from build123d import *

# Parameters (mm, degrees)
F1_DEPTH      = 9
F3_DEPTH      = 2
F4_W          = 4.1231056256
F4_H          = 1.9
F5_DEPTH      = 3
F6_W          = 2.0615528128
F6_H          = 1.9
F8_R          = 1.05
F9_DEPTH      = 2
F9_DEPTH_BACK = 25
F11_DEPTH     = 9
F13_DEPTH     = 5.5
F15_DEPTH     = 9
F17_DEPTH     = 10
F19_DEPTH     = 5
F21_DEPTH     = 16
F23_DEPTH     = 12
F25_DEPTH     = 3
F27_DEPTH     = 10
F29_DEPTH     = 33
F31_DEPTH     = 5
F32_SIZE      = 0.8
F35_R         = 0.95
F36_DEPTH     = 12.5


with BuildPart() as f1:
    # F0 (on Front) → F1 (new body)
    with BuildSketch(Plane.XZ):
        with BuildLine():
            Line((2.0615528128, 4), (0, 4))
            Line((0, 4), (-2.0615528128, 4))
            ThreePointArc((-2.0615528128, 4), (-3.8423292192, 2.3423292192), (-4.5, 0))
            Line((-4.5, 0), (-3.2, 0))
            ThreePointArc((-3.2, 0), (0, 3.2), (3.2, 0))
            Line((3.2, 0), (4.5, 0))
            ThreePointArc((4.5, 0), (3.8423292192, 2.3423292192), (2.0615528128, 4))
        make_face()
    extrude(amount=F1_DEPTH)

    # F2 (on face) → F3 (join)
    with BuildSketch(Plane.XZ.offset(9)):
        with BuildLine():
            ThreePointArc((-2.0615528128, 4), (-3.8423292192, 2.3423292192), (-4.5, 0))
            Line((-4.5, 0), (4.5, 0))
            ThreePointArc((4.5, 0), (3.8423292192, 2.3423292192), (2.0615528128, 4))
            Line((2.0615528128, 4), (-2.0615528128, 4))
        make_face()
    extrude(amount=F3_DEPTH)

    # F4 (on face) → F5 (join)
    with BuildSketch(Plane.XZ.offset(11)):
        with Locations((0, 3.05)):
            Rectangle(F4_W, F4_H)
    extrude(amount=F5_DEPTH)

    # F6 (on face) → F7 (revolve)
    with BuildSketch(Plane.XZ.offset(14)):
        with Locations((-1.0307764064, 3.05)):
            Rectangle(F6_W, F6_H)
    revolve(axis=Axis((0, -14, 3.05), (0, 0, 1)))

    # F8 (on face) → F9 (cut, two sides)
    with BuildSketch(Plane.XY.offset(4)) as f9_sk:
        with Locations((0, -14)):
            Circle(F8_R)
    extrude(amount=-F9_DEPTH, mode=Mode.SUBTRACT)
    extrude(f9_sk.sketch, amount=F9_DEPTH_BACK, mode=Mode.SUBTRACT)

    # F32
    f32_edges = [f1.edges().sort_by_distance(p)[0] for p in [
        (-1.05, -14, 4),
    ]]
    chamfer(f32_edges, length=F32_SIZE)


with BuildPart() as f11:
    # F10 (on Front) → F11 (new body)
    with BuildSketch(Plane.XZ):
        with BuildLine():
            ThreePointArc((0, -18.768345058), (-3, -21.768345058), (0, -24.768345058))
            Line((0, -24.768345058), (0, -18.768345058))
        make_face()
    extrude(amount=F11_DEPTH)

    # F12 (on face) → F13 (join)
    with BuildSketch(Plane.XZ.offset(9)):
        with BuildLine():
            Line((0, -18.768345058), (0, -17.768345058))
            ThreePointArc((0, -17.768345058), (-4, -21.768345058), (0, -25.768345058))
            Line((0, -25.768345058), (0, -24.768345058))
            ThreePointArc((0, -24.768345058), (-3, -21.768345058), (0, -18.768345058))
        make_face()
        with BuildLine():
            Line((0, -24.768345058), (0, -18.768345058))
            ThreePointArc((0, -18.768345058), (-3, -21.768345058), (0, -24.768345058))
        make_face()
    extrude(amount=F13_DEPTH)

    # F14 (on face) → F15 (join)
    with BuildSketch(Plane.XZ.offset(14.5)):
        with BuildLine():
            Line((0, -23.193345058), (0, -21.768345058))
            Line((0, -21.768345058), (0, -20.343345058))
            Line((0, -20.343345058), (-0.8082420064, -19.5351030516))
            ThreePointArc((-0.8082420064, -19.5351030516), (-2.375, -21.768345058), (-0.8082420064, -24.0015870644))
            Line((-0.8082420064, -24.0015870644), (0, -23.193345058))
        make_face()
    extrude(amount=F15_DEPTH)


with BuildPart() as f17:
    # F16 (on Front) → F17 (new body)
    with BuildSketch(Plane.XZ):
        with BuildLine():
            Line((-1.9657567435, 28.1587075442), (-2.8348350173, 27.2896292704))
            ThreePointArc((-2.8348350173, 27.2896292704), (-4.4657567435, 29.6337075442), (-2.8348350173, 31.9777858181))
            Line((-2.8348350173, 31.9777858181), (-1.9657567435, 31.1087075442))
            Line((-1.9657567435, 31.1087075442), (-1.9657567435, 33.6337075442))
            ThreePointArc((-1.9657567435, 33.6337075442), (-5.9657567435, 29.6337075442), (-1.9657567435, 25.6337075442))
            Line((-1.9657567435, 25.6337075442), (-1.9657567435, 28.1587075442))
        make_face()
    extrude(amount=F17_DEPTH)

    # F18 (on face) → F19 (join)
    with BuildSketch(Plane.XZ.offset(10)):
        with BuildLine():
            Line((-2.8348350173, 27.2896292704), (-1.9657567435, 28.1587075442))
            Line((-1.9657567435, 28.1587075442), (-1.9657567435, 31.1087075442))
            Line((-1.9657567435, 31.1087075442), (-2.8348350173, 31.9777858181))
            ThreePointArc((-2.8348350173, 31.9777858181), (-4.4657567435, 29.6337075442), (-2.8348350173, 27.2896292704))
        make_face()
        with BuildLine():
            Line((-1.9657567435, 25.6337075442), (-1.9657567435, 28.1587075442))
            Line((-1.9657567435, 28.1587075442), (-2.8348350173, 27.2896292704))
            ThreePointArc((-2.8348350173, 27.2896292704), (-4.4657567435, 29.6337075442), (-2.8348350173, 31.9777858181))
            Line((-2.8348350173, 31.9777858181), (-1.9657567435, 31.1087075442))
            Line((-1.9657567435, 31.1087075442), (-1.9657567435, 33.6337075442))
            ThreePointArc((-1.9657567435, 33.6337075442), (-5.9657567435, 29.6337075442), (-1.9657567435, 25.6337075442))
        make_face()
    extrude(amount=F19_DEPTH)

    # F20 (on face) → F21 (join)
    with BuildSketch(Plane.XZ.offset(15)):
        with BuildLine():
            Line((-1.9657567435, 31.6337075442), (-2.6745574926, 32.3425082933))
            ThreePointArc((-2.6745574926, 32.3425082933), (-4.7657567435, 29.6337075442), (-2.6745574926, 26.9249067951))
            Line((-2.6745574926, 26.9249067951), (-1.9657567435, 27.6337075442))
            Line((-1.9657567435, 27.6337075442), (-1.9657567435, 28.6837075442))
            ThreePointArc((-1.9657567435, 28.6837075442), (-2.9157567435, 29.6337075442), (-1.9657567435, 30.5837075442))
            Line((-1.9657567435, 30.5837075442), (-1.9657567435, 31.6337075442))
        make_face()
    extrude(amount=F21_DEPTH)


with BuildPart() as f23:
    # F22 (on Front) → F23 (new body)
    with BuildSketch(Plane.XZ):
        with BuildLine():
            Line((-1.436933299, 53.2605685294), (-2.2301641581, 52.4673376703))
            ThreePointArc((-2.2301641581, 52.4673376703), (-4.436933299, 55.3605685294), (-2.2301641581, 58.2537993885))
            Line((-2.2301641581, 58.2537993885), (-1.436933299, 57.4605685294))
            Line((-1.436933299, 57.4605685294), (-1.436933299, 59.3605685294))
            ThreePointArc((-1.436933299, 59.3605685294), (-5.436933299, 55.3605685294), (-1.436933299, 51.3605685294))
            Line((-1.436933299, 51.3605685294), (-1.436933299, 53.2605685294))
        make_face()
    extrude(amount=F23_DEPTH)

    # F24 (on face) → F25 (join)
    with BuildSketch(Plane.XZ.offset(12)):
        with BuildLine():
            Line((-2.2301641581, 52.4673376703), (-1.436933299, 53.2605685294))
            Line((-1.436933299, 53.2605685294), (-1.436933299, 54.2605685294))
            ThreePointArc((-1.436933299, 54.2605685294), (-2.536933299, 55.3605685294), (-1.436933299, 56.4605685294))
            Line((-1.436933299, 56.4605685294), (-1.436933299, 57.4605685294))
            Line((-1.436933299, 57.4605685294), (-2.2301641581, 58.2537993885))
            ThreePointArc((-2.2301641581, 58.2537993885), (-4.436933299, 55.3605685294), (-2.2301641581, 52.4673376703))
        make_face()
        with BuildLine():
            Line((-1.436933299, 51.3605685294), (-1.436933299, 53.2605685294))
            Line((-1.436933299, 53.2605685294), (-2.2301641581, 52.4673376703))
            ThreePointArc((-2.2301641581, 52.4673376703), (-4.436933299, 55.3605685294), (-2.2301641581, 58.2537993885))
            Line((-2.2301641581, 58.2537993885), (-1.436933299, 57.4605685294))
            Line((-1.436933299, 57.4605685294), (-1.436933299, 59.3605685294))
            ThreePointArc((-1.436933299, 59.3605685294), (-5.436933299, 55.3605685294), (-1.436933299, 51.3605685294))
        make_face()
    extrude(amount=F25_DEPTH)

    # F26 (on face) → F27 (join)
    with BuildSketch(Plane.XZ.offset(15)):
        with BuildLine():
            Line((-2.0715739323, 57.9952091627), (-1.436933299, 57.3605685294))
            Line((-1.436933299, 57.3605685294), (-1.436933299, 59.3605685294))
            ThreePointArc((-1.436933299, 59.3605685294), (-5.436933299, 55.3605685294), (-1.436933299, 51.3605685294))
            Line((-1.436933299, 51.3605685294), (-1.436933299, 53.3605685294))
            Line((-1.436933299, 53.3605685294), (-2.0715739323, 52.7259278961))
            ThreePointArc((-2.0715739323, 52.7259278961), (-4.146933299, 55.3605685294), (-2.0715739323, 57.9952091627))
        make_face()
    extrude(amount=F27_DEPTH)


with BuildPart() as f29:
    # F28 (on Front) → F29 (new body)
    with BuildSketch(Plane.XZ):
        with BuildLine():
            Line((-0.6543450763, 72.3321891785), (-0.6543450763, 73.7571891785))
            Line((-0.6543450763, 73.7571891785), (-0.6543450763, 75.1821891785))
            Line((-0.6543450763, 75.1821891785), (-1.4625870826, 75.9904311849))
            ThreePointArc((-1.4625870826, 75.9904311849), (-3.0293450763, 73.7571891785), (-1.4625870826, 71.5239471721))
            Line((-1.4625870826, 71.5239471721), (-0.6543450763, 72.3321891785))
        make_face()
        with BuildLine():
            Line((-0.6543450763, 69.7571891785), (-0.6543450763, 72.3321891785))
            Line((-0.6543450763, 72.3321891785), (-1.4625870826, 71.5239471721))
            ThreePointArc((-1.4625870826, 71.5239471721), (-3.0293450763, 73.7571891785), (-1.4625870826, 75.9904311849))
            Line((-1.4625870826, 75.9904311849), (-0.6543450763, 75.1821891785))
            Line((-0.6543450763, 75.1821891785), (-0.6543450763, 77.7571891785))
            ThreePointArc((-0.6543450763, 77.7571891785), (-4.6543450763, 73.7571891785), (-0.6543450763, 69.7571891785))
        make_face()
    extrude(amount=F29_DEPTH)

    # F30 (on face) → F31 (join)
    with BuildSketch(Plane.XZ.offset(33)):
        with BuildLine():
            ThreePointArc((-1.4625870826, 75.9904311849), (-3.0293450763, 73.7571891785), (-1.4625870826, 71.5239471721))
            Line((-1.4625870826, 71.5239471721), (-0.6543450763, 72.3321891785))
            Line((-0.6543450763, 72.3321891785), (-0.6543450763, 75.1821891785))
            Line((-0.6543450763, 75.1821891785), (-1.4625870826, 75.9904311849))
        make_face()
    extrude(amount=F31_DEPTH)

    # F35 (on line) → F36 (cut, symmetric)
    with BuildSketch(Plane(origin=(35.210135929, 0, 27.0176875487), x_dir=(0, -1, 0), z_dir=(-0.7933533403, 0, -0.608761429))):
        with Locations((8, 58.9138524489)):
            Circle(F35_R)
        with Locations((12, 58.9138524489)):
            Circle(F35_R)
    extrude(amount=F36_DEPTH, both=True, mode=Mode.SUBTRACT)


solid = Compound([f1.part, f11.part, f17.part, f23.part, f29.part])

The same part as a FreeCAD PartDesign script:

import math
import FreeCAD as App
import Part
import Sketcher
from FreeCAD import Vector
Q = App.Units.Quantity


def edges_at(feature, points):
    """Names of the edges that pass closest to the given points."""
    edges = feature.Shape.Edges
    near = lambda p: min(range(len(edges)), key=lambda i: edges[i].distToShape(Part.Vertex(*p))[0])
    return sorted({f"Edge{near(p) + 1}" for p in points})

doc = App.newDocument("Part")
body = doc.addObject("PartDesign::Body", "Body")

sketch1 = body.newObject("Sketcher::SketchObject", "Sketch")
sketch1.AttachmentSupport = (doc.getObject("XZ_Plane"), [""])
sketch1.MapMode = "FlatFace"
sketch1.addGeometry([
    Part.LineSegment(Vector(2.1, 4, 0), Vector(-2.1, 4, 0)),
    Part.ArcOfCircle(Part.Circle(Vector(0, 0, 0), Vector(0, 0, 1), 4.5), math.radians(117), math.radians(180)),
    Part.LineSegment(Vector(-4.5, 0, 0), Vector(-3.2, 0, 0)),
    Part.ArcOfCircle(Part.Circle(Vector(0, 0, 0), Vector(0, 0, 1), 3.2), math.radians(0), math.radians(180)),
    Part.LineSegment(Vector(3.2, 0, 0), Vector(4.5, 0, 0)),
    Part.ArcOfCircle(Part.Circle(Vector(0, 0, 0), Vector(0, 0, 1), 4.5), math.radians(0), math.radians(63)),
], False)
sketch1.addConstraint([
    Sketcher.Constraint("Coincident", 0, 2, 1, 1),
    Sketcher.Constraint("Coincident", 1, 2, 2, 1),
    Sketcher.Constraint("Coincident", 2, 2, 3, 2),
    Sketcher.Constraint("Coincident", 3, 1, 4, 1),
    Sketcher.Constraint("Coincident", 4, 2, 5, 1),
    Sketcher.Constraint("Coincident", 5, 2, 0, 1),
    Sketcher.Constraint("Horizontal", 0),
    Sketcher.Constraint("Horizontal", 2),
    Sketcher.Constraint("Horizontal", 4),
    Sketcher.Constraint("Coincident", 1, 3, -1, 1),
    Sketcher.Constraint("Coincident", 3, 3, -1, 1),
    Sketcher.Constraint("Coincident", 5, 3, -1, 1),
    Sketcher.Constraint("Equal", 1, 5),
    Sketcher.Constraint("PointOnObject", 1, 2, -1),
    Sketcher.Constraint("PointOnObject", 3, 1, -1),
    Sketcher.Constraint("Radius", 1, Q("4.5 mm")),
    Sketcher.Constraint("Radius", 3, Q("3.2 mm")),
    Sketcher.Constraint("DistanceY", -1, 1, 0, 2, Q("4 mm")),
])
pad1 = body.newObject("PartDesign::Pad", "Pad")
pad1.Profile = sketch1
pad1.Length = 9

sketch2 = body.newObject("Sketcher::SketchObject", "Sketch001")
sketch2.AttachmentSupport = (doc.getObject("XZ_Plane"), [""])
sketch2.MapMode = "FlatFace"
sketch2.AttachmentOffset = App.Placement(Vector(0, 0, 9), App.Rotation())
sketch2.addGeometry([
    Part.ArcOfCircle(Part.Circle(Vector(0, 0, 0), Vector(0, 0, 1), 4.5), math.radians(117), math.radians(180)),
    Part.LineSegment(Vector(-4.5, 0, 0), Vector(4.5, 0, 0)),
    Part.ArcOfCircle(Part.Circle(Vector(0, 0, 0), Vector(0, 0, 1), 4.5), math.radians(0), math.radians(63)),
    Part.LineSegment(Vector(2.1, 4, 0), Vector(-2.1, 4, 0)),
], False)
sketch2.addConstraint([
    Sketcher.Constraint("Coincident", 0, 2, 1, 1),
    Sketcher.Constraint("Coincident", 1, 2, 2, 1),
    Sketcher.Constraint("Coincident", 2, 2, 3, 1),
    Sketcher.Constraint("Coincident", 3, 2, 0, 1),
    Sketcher.Constraint("Horizontal", 1),
    Sketcher.Constraint("Horizontal", 3),
    Sketcher.Constraint("Coincident", 0, 3, -1, 1),
    Sketcher.Constraint("Coincident", 2, 3, -1, 1),
    Sketcher.Constraint("Equal", 0, 2),
    Sketcher.Constraint("PointOnObject", 0, 2, -1),
    Sketcher.Constraint("Radius", 0, Q("4.5 mm")),
    Sketcher.Constraint("DistanceY", -1, 1, 2, 2, Q("4 mm")),
])
pad2 = body.newObject("PartDesign::Pad", "Pad001")
pad2.Profile = sketch2
pad2.Length = 2

sketch3 = body.newObject("Sketcher::SketchObject", "Sketch002")
sketch3.AttachmentSupport = (doc.getObject("XZ_Plane"), [""])
sketch3.MapMode = "FlatFace"
sketch3.AttachmentOffset = App.Placement(Vector(0, 0, 11), App.Rotation())
sketch3.addGeometry([
    Part.LineSegment(Vector(-2.1, 4, 0), Vector(-2.1, 2.1, 0)),
    Part.LineSegment(Vector(-2.1, 2.1, 0), Vector(2.1, 2.1, 0)),
    Part.LineSegment(Vector(2.1, 2.1, 0), Vector(2.1, 4, 0)),
    Part.LineSegment(Vector(2.1, 4, 0), Vector(-2.1, 4, 0)),
], False)
sketch3.addConstraint([
    Sketcher.Constraint("Coincident", 0, 2, 1, 1),
    Sketcher.Constraint("Coincident", 1, 2, 2, 1),
    Sketcher.Constraint("Coincident", 2, 2, 3, 1),
    Sketcher.Constraint("Coincident", 3, 2, 0, 1),
    Sketcher.Constraint("Vertical", 0),
    Sketcher.Constraint("Horizontal", 1),
    Sketcher.Constraint("Vertical", 2),
    Sketcher.Constraint("Horizontal", 3),
    Sketcher.Constraint("DistanceY", 0, 2, 0, 1, Q("1.9 mm")),
    Sketcher.Constraint("DistanceY", -1, 1, 2, 2, Q("4 mm")),
    Sketcher.Constraint("DistanceX", 1, 1, 1, 2, Q("4.123106 mm")),
    Sketcher.Constraint("DistanceX", 0, 2, -1, 1, Q("2.061553 mm")),
])
pad3 = body.newObject("PartDesign::Pad", "Pad002")
pad3.Profile = sketch3
pad3.Length = 3

sketch4 = body.newObject("Sketcher::SketchObject", "Sketch003")
sketch4.AttachmentSupport = (doc.getObject("XZ_Plane"), [""])
sketch4.MapMode = "FlatFace"
sketch4.AttachmentOffset = App.Placement(Vector(0, 0, 14), App.Rotation())
sketch4.addGeometry([
    Part.LineSegment(Vector(-2.1, 4, 0), Vector(-2.1, 2.1, 0)),
    Part.LineSegment(Vector(-2.1, 2.1, 0), Vector(0, 2.1, 0)),
    Part.LineSegment(Vector(0, 2.1, 0), Vector(0, 4, 0)),
    Part.LineSegment(Vector(0, 4, 0), Vector(-2.1, 4, 0)),
], False)
sketch4.addConstraint([
    Sketcher.Constraint("Coincident", 0, 2, 1, 1),
    Sketcher.Constraint("Coincident", 1, 2, 2, 1),
    Sketcher.Constraint("Coincident", 2, 2, 3, 1),
    Sketcher.Constraint("Coincident", 3, 2, 0, 1),
    Sketcher.Constraint("Vertical", 0),
    Sketcher.Constraint("Horizontal", 1),
    Sketcher.Constraint("Vertical", 2),
    Sketcher.Constraint("Horizontal", 3),
    Sketcher.Constraint("PointOnObject", 1, 2, -2),
    Sketcher.Constraint("DistanceY", 0, 2, 0, 1, Q("1.9 mm")),
    Sketcher.Constraint("DistanceY", -1, 1, 2, 2, Q("4 mm")),
    Sketcher.Constraint("DistanceX", 1, 1, 1, 2, Q("2.061553 mm")),
])
revolution = body.newObject("PartDesign::Revolution", "Revolution")
revolution.Profile = sketch4
revolution.ReferenceAxis = (sketch4, ["V_Axis"])
revolution.Angle = 360

sketch5 = body.newObject("Sketcher::SketchObject", "Sketch004")
sketch5.AttachmentSupport = (doc.getObject("XY_Plane"), [""])
sketch5.MapMode = "FlatFace"
sketch5.AttachmentOffset = App.Placement(Vector(0, 0, 4), App.Rotation())
sketch5.addGeometry(Part.Circle(Vector(0, -14, 0), Vector(0, 0, 1), 1.1), False)
sketch5.addConstraint([
    Sketcher.Constraint("PointOnObject", 0, 3, -2),
    Sketcher.Constraint("Diameter", 0, Q("2.1 mm")),
    Sketcher.Constraint("DistanceY", 0, 3, -1, 1, Q("14 mm")),
])
pocket1 = body.newObject("PartDesign::Pocket", "Pocket")
pocket1.Profile = sketch5
pocket1.Type = "ThroughAll"
pocket1.Midplane = True
doc.recompute()

chamfer = body.newObject("PartDesign::Chamfer", "Chamfer")
chamfer.Base = (pocket1, edges_at(pocket1, [(-1.05, -14, 4)]))
chamfer.Size = 0.8
body2 = doc.addObject("PartDesign::Body", "Body001")

sketch6 = body2.newObject("Sketcher::SketchObject", "Sketch005")
sketch6.AttachmentSupport = (doc.getObject("XZ_Plane001"), [""])
sketch6.MapMode = "FlatFace"
sketch6.addGeometry([
    Part.ArcOfCircle(Part.Circle(Vector(0, -21.8, 0), Vector(0, 0, 1), 3), math.radians(90), math.radians(270)),
    Part.LineSegment(Vector(0, -24.8, 0), Vector(0, -18.8, 0)),
], False)
sketch6.addConstraint([
    Sketcher.Constraint("Coincident", 0, 1, 1, 2),
    Sketcher.Constraint("Coincident", 1, 1, 0, 2),
    Sketcher.Constraint("Vertical", 1),
    Sketcher.Constraint("PointOnObject", 0, 3, -2),
    Sketcher.Constraint("PointOnObject", 0, 1, -2),
    Sketcher.Constraint("Radius", 0, Q("3 mm")),
    Sketcher.Constraint("DistanceY", 0, 3, -1, 1, Q("21.768345 mm")),
])
pad4 = body2.newObject("PartDesign::Pad", "Pad003")
pad4.Profile = sketch6
pad4.Length = 9

sketch7 = body2.newObject("Sketcher::SketchObject", "Sketch006")
sketch7.AttachmentSupport = (doc.getObject("XZ_Plane001"), [""])
sketch7.MapMode = "FlatFace"
sketch7.AttachmentOffset = App.Placement(Vector(0, 0, 9), App.Rotation())
sketch7.addGeometry([
    Part.ArcOfCircle(Part.Circle(Vector(0, -21.8, 0), Vector(0, 0, 1), 4), math.radians(90), math.radians(270)),
    Part.LineSegment(Vector(0, -25.8, 0), Vector(0, -17.8, 0)),
], False)
sketch7.addConstraint([
    Sketcher.Constraint("Coincident", 0, 1, 1, 2),
    Sketcher.Constraint("Coincident", 1, 1, 0, 2),
    Sketcher.Constraint("Vertical", 1),
    Sketcher.Constraint("PointOnObject", 0, 3, -2),
    Sketcher.Constraint("PointOnObject", 0, 1, -2),
    Sketcher.Constraint("Radius", 0, Q("4 mm")),
    Sketcher.Constraint("DistanceY", 0, 3, -1, 1, Q("21.768345 mm")),
])
pad5 = body2.newObject("PartDesign::Pad", "Pad004")
pad5.Profile = sketch7
pad5.Length = 5.5

sketch8 = body2.newObject("Sketcher::SketchObject", "Sketch007")
sketch8.AttachmentSupport = (doc.getObject("XZ_Plane001"), [""])
sketch8.MapMode = "FlatFace"
sketch8.AttachmentOffset = App.Placement(Vector(0, 0, 14.5), App.Rotation())
sketch8.addGeometry([
    Part.LineSegment(Vector(0, -23.2, 0), Vector(0, -20.3, 0)),
    Part.LineSegment(Vector(0, -20.3, 0), Vector(-0.8, -19.5, 0)),
    Part.ArcOfCircle(Part.Circle(Vector(0, -21.8, 0), Vector(0, 0, 1), 2.4), math.radians(110), math.radians(250)),
    Part.LineSegment(Vector(-0.8, -24, 0), Vector(0, -23.2, 0)),
], False)
sketch8.addConstraint([
    Sketcher.Constraint("Coincident", 0, 2, 1, 1),
    Sketcher.Constraint("Coincident", 1, 2, 2, 1),
    Sketcher.Constraint("Coincident", 2, 2, 3, 1),
    Sketcher.Constraint("Coincident", 3, 2, 0, 1),
    Sketcher.Constraint("Vertical", 0),
    Sketcher.Constraint("PointOnObject", 2, 3, -2),
    Sketcher.Constraint("PointOnObject", 0, 2, -2),
    Sketcher.Constraint("Perpendicular", 1, 3),
    Sketcher.Constraint("Vertical", 1, 2, 2, 2),
    Sketcher.Constraint("Equal", 1, 3),
    Sketcher.Constraint("Radius", 2, Q("2.375 mm")),
    Sketcher.Constraint("DistanceY", 0, 1, 0, 2, Q("2.85 mm")),
    Sketcher.Constraint("DistanceY", 2, 3, -1, 1, Q("21.768345 mm")),
])
pad6 = body2.newObject("PartDesign::Pad", "Pad005")
pad6.Profile = sketch8
pad6.Length = 9
body3 = doc.addObject("PartDesign::Body", "Body002")

sketch9 = body3.newObject("Sketcher::SketchObject", "Sketch008")
sketch9.AttachmentSupport = (doc.getObject("XZ_Plane002"), [""])
sketch9.MapMode = "FlatFace"
sketch9.addGeometry([
    Part.LineSegment(Vector(-2, 28.2, 0), Vector(-2.8, 27.3, 0)),
    Part.ArcOfCircle(Part.Circle(Vector(-2, 29.6, 0), Vector(0, 0, 1), 2.5), math.radians(110), math.radians(250)),
    Part.LineSegment(Vector(-2.8, 32, 0), Vector(-2, 31.1, 0)),
    Part.LineSegment(Vector(-2, 31.1, 0), Vector(-2, 33.6, 0)),
    Part.ArcOfCircle(Part.Circle(Vector(-2, 29.6, 0), Vector(0, 0, 1), 4), math.radians(90), math.radians(270)),
    Part.LineSegment(Vector(-2, 25.6, 0), Vector(-2, 28.2, 0)),
], False)
sketch9.addConstraint([
    Sketcher.Constraint("Coincident", 0, 2, 1, 2),
    Sketcher.Constraint("Coincident", 1, 1, 2, 1),
    Sketcher.Constraint("Coincident", 2, 2, 3, 1),
    Sketcher.Constraint("Coincident", 3, 2, 4, 1),
    Sketcher.Constraint("Coincident", 4, 2, 5, 1),
    Sketcher.Constraint("Coincident", 5, 2, 0, 1),
    Sketcher.Constraint("Vertical", 3),
    Sketcher.Constraint("Vertical", 5),
    Sketcher.Constraint("Coincident", 4, 3, 1, 3),
    Sketcher.Constraint("Perpendicular", 0, 2),
    Sketcher.Constraint("Vertical", 0, 2, 1, 1),
    Sketcher.Constraint("Vertical", 4, 3, 2, 2),
    Sketcher.Constraint("Vertical", 3, 2, 4, 2),
    Sketcher.Constraint("Equal", 3, 5),
    Sketcher.Constraint("Radius", 4, Q("4 mm")),
    Sketcher.Constraint("Radius", 1, Q("2.5 mm")),
    Sketcher.Constraint("DistanceY", 3, 1, 3, 2, Q("2.525 mm")),
    Sketcher.Constraint("DistanceY", -1, 1, 0, 2, Q("27.289629 mm")),
    Sketcher.Constraint("DistanceX", 1, 3, -1, 1, Q("1.965757 mm")),
])
pad7 = body3.newObject("PartDesign::Pad", "Pad006")
pad7.Profile = sketch9
pad7.Length = 10

sketch10 = body3.newObject("Sketcher::SketchObject", "Sketch009")
sketch10.AttachmentSupport = (doc.getObject("XZ_Plane002"), [""])
sketch10.MapMode = "FlatFace"
sketch10.AttachmentOffset = App.Placement(Vector(0, 0, 10), App.Rotation())
sketch10.addGeometry([
    Part.ArcOfCircle(Part.Circle(Vector(-2, 29.6, 0), Vector(0, 0, 1), 4), math.radians(90), math.radians(270)),
    Part.LineSegment(Vector(-2, 25.6, 0), Vector(-2, 33.6, 0)),
], False)
sketch10.addConstraint([
    Sketcher.Constraint("Coincident", 0, 1, 1, 2),
    Sketcher.Constraint("Coincident", 1, 1, 0, 2),
    Sketcher.Constraint("Vertical", 1),
    Sketcher.Constraint("Radius", 0, Q("4 mm")),
    Sketcher.Constraint("DistanceX", 0, 3, -1, 1, Q("1.965757 mm")),
    Sketcher.Constraint("DistanceY", -1, 1, 0, 3, Q("29.633708 mm")),
    Sketcher.Constraint("DistanceX", 0, 1, -1, 1, Q("1.965757 mm")),
])
pad8 = body3.newObject("PartDesign::Pad", "Pad007")
pad8.Profile = sketch10
pad8.Length = 5

sketch11 = body3.newObject("Sketcher::SketchObject", "Sketch010")
sketch11.AttachmentSupport = (doc.getObject("XZ_Plane002"), [""])
sketch11.MapMode = "FlatFace"
sketch11.AttachmentOffset = App.Placement(Vector(0, 0, 15), App.Rotation())
sketch11.addGeometry([
    Part.LineSegment(Vector(-2, 31.6, 0), Vector(-2.7, 32.3, 0)),
    Part.ArcOfCircle(Part.Circle(Vector(-2, 29.6, 0), Vector(0, 0, 1), 2.8), math.radians(105), math.radians(255)),
    Part.LineSegment(Vector(-2.7, 26.9, 0), Vector(-2, 27.6, 0)),
    Part.LineSegment(Vector(-2, 27.6, 0), Vector(-2, 28.7, 0)),
    Part.ArcOfCircle(Part.Circle(Vector(-2, 29.6, 0), Vector(0, 0, 1), 0.9), math.radians(90), math.radians(270)),
    Part.LineSegment(Vector(-2, 30.6, 0), Vector(-2, 31.6, 0)),
], False)
sketch11.addConstraint([
    Sketcher.Constraint("Coincident", 0, 2, 1, 1),
    Sketcher.Constraint("Coincident", 1, 2, 2, 1),
    Sketcher.Constraint("Coincident", 2, 2, 3, 1),
    Sketcher.Constraint("Coincident", 3, 2, 4, 2),
    Sketcher.Constraint("Coincident", 4, 1, 5, 1),
    Sketcher.Constraint("Coincident", 5, 2, 0, 1),
    Sketcher.Constraint("Vertical", 3),
    Sketcher.Constraint("Vertical", 5),
    Sketcher.Constraint("Coincident", 4, 3, 1, 3),
    Sketcher.Constraint("Perpendicular", 0, 2),
    Sketcher.Constraint("Vertical", 0, 2, 1, 2),
    Sketcher.Constraint("Vertical", 4, 3, 2, 2),
    Sketcher.Constraint("Vertical", 3, 2, 4, 1),
    Sketcher.Constraint("Equal", 3, 5),
    Sketcher.Constraint("Radius", 1, Q("2.8 mm")),
    Sketcher.Constraint("Radius", 4, Q("0.95 mm")),
    Sketcher.Constraint("DistanceY", 2, 2, 1, 3, Q("2 mm")),
    Sketcher.Constraint("DistanceY", -1, 1, 0, 2, Q("32.342508 mm")),
    Sketcher.Constraint("DistanceX", 1, 3, -1, 1, Q("1.965757 mm")),
])
pad9 = body3.newObject("PartDesign::Pad", "Pad008")
pad9.Profile = sketch11
pad9.Length = 16
body4 = doc.addObject("PartDesign::Body", "Body003")

sketch12 = body4.newObject("Sketcher::SketchObject", "Sketch011")
sketch12.AttachmentSupport = (doc.getObject("XZ_Plane003"), [""])
sketch12.MapMode = "FlatFace"
sketch12.addGeometry([
    Part.LineSegment(Vector(-1.4, 53.3, 0), Vector(-2.2, 52.5, 0)),
    Part.ArcOfCircle(Part.Circle(Vector(-1.4, 55.4, 0), Vector(0, 0, 1), 3), math.radians(105), math.radians(255)),
    Part.LineSegment(Vector(-2.2, 58.3, 0), Vector(-1.4, 57.5, 0)),
    Part.LineSegment(Vector(-1.4, 57.5, 0), Vector(-1.4, 59.4, 0)),
    Part.ArcOfCircle(Part.Circle(Vector(-1.4, 55.4, 0), Vector(0, 0, 1), 4), math.radians(90), math.radians(270)),
    Part.LineSegment(Vector(-1.4, 51.4, 0), Vector(-1.4, 53.3, 0)),
], False)
sketch12.addConstraint([
    Sketcher.Constraint("Coincident", 0, 2, 1, 2),
    Sketcher.Constraint("Coincident", 1, 1, 2, 1),
    Sketcher.Constraint("Coincident", 2, 2, 3, 1),
    Sketcher.Constraint("Coincident", 3, 2, 4, 1),
    Sketcher.Constraint("Coincident", 4, 2, 5, 1),
    Sketcher.Constraint("Coincident", 5, 2, 0, 1),
    Sketcher.Constraint("Vertical", 3),
    Sketcher.Constraint("Vertical", 5),
    Sketcher.Constraint("Coincident", 4, 3, 1, 3),
    Sketcher.Constraint("Perpendicular", 0, 2),
    Sketcher.Constraint("Vertical", 0, 2, 1, 1),
    Sketcher.Constraint("Vertical", 4, 3, 2, 2),
    Sketcher.Constraint("Vertical", 3, 2, 4, 2),
    Sketcher.Constraint("Equal", 3, 5),
    Sketcher.Constraint("Radius", 1, Q("3 mm")),
    Sketcher.Constraint("Radius", 4, Q("4 mm")),
    Sketcher.Constraint("DistanceY", 3, 1, 3, 2, Q("1.9 mm")),
    Sketcher.Constraint("DistanceY", -1, 1, 1, 1, Q("58.253799 mm")),
    Sketcher.Constraint("DistanceX", 1, 3, -1, 1, Q("1.436933 mm")),
])
pad10 = body4.newObject("PartDesign::Pad", "Pad009")
pad10.Profile = sketch12
pad10.Length = 12

sketch13 = body4.newObject("Sketcher::SketchObject", "Sketch012")
sketch13.AttachmentSupport = (doc.getObject("XZ_Plane003"), [""])
sketch13.MapMode = "FlatFace"
sketch13.AttachmentOffset = App.Placement(Vector(0, 0, 12), App.Rotation())
sketch13.addGeometry([
    Part.ArcOfCircle(Part.Circle(Vector(-1.4, 55.4, 0), Vector(0, 0, 1), 1.1), math.radians(90), math.radians(270)),
    Part.LineSegment(Vector(-1.4, 56.5, 0), Vector(-1.4, 59.4, 0)),
    Part.ArcOfCircle(Part.Circle(Vector(-1.4, 55.4, 0), Vector(0, 0, 1), 4), math.radians(90), math.radians(270)),
    Part.LineSegment(Vector(-1.4, 51.4, 0), Vector(-1.4, 54.3, 0)),
], False)
sketch13.addConstraint([
    Sketcher.Constraint("Coincident", 0, 1, 1, 1),
    Sketcher.Constraint("Coincident", 1, 2, 2, 1),
    Sketcher.Constraint("Coincident", 2, 2, 3, 1),
    Sketcher.Constraint("Coincident", 3, 2, 0, 2),
    Sketcher.Constraint("Vertical", 1),
    Sketcher.Constraint("Vertical", 3),
    Sketcher.Constraint("Coincident", 2, 3, 0, 3),
    Sketcher.Constraint("Vertical", 2, 3, 0, 1),
    Sketcher.Constraint("Vertical", 1, 2, 2, 2),
    Sketcher.Constraint("Radius", 2, Q("4 mm")),
    Sketcher.Constraint("Radius", 0, Q("1.1 mm")),
    Sketcher.Constraint("DistanceY", -1, 1, 0, 3, Q("55.360569 mm")),
    Sketcher.Constraint("DistanceX", 0, 3, -1, 1, Q("1.436933 mm")),
])
pad11 = body4.newObject("PartDesign::Pad", "Pad010")
pad11.Profile = sketch13
pad11.Length = 3

sketch14 = body4.newObject("Sketcher::SketchObject", "Sketch013")
sketch14.AttachmentSupport = (doc.getObject("XZ_Plane003"), [""])
sketch14.MapMode = "FlatFace"
sketch14.AttachmentOffset = App.Placement(Vector(0, 0, 15), App.Rotation())
sketch14.addGeometry([
    Part.LineSegment(Vector(-2.1, 58, 0), Vector(-1.4, 57.4, 0)),
    Part.LineSegment(Vector(-1.4, 57.4, 0), Vector(-1.4, 59.4, 0)),
    Part.ArcOfCircle(Part.Circle(Vector(-1.4, 55.4, 0), Vector(0, 0, 1), 4), math.radians(90), math.radians(270)),
    Part.LineSegment(Vector(-1.4, 51.4, 0), Vector(-1.4, 53.4, 0)),
    Part.LineSegment(Vector(-1.4, 53.4, 0), Vector(-2.1, 52.7, 0)),
    Part.ArcOfCircle(Part.Circle(Vector(-1.4, 55.4, 0), Vector(0, 0, 1), 2.7), math.radians(104), math.radians(256)),
], False)
sketch14.addConstraint([
    Sketcher.Constraint("Coincident", 0, 2, 1, 1),
    Sketcher.Constraint("Coincident", 1, 2, 2, 1),
    Sketcher.Constraint("Coincident", 2, 2, 3, 1),
    Sketcher.Constraint("Coincident", 3, 2, 4, 1),
    Sketcher.Constraint("Coincident", 4, 2, 5, 2),
    Sketcher.Constraint("Coincident", 5, 1, 0, 1),
    Sketcher.Constraint("Vertical", 1),
    Sketcher.Constraint("Vertical", 3),
    Sketcher.Constraint("Coincident", 5, 3, 2, 3),
    Sketcher.Constraint("Perpendicular", 0, 4),
    Sketcher.Constraint("Vertical", 5, 3, 0, 2),
    Sketcher.Constraint("Vertical", 1, 2, 2, 2),
    Sketcher.Constraint("Vertical", 4, 2, 5, 1),
    Sketcher.Constraint("Equal", 1, 3),
    Sketcher.Constraint("Radius", 2, Q("4 mm")),
    Sketcher.Constraint("DistanceY", 1, 1, 1, 2, Q("2 mm")),
    Sketcher.Constraint("Radius", 5, Q("2.71 mm")),
    Sketcher.Constraint("DistanceY", -1, 1, 2, 3, Q("55.360569 mm")),
    Sketcher.Constraint("DistanceX", 2, 3, -1, 1, Q("1.436933 mm")),
])
pad12 = body4.newObject("PartDesign::Pad", "Pad011")
pad12.Profile = sketch14
pad12.Length = 10
body5 = doc.addObject("PartDesign::Body", "Body004")

sketch15 = body5.newObject("Sketcher::SketchObject", "Sketch014")
sketch15.AttachmentSupport = (doc.getObject("XZ_Plane004"), [""])
sketch15.MapMode = "FlatFace"
sketch15.addGeometry([
    Part.ArcOfCircle(Part.Circle(Vector(-0.7, 73.8, 0), Vector(0, 0, 1), 4), math.radians(90), math.radians(270)),
    Part.LineSegment(Vector(-0.7, 69.8, 0), Vector(-0.7, 77.8, 0)),
], False)
sketch15.addConstraint([
    Sketcher.Constraint("Coincident", 0, 1, 1, 2),
    Sketcher.Constraint("Coincident", 1, 1, 0, 2),
    Sketcher.Constraint("Vertical", 1),
    Sketcher.Constraint("Radius", 0, Q("4 mm")),
    Sketcher.Constraint("DistanceY", -1, 1, 0, 3, Q("73.757189 mm")),
    Sketcher.Constraint("DistanceX", 0, 3, -1, 1, Q("0.654345 mm")),
    Sketcher.Constraint("DistanceX", 0, 1, -1, 1, Q("0.654345 mm")),
])
pad13 = body5.newObject("PartDesign::Pad", "Pad012")
pad13.Profile = sketch15
pad13.Length = 33

sketch16 = body5.newObject("Sketcher::SketchObject", "Sketch015")
sketch16.AttachmentSupport = (doc.getObject("XZ_Plane004"), [""])
sketch16.MapMode = "FlatFace"
sketch16.AttachmentOffset = App.Placement(Vector(0, 0, 33), App.Rotation())
sketch16.addGeometry([
    Part.ArcOfCircle(Part.Circle(Vector(-0.7, 73.8, 0), Vector(0, 0, 1), 2.4), math.radians(110), math.radians(250)),
    Part.LineSegment(Vector(-1.5, 71.5, 0), Vector(-0.7, 72.3, 0)),
    Part.LineSegment(Vector(-0.7, 72.3, 0), Vector(-0.7, 75.2, 0)),
    Part.LineSegment(Vector(-0.7, 75.2, 0), Vector(-1.5, 76, 0)),
], False)
sketch16.addConstraint([
    Sketcher.Constraint("Coincident", 0, 2, 1, 1),
    Sketcher.Constraint("Coincident", 1, 2, 2, 1),
    Sketcher.Constraint("Coincident", 2, 2, 3, 1),
    Sketcher.Constraint("Coincident", 3, 2, 0, 1),
    Sketcher.Constraint("Vertical", 2),
    Sketcher.Constraint("Perpendicular", 1, 3),
    Sketcher.Constraint("Vertical", 0, 3, 1, 2),
    Sketcher.Constraint("Vertical", 0, 2, 3, 2),
    Sketcher.Constraint("Equal", 1, 3),
    Sketcher.Constraint("Radius", 0, Q("2.375 mm")),
    Sketcher.Constraint("DistanceY", 2, 1, 2, 2, Q("2.85 mm")),
    Sketcher.Constraint("DistanceY", -1, 1, 0, 3, Q("73.757189 mm")),
    Sketcher.Constraint("DistanceX", 0, 3, -1, 1, Q("0.654345 mm")),
])
pad14 = body5.newObject("PartDesign::Pad", "Pad013")
pad14.Profile = sketch16
pad14.Length = 5

sketch17 = body5.newObject("Sketcher::SketchObject", "Sketch016")
sketch17.Placement = App.Placement(Vector(35.210136, 0, 27.017688), App.Rotation(Vector(0, -1, 0), Vector(-0.608761429, 0, 0.79335334), Vector(-0.79335334, 0, -0.608761429), "ZXY"))
sketch17.addGeometry([
    Part.Circle(Vector(8, 58.9, 0), Vector(0, 0, 1), 0.9),
    Part.Circle(Vector(12, 58.9, 0), Vector(0, 0, 1), 0.9),
], False)
sketch17.addConstraint([
    Sketcher.Constraint("Equal", 0, 1),
    Sketcher.Constraint("Horizontal", 0, 3, 1, 3),
    Sketcher.Constraint("Diameter", 0, Q("1.9 mm")),
    Sketcher.Constraint("DistanceX", -1, 1, 0, 3, Q("8 mm")),
    Sketcher.Constraint("DistanceX", -1, 1, 1, 3, Q("12 mm")),
    Sketcher.Constraint("DistanceY", -1, 1, 0, 3, Q("58.913852 mm")),
])
pocket2 = body5.newObject("PartDesign::Pocket", "Pocket001")
pocket2.Profile = sketch17
pocket2.Length = 25
pocket2.Midplane = True

doc.recompute()
